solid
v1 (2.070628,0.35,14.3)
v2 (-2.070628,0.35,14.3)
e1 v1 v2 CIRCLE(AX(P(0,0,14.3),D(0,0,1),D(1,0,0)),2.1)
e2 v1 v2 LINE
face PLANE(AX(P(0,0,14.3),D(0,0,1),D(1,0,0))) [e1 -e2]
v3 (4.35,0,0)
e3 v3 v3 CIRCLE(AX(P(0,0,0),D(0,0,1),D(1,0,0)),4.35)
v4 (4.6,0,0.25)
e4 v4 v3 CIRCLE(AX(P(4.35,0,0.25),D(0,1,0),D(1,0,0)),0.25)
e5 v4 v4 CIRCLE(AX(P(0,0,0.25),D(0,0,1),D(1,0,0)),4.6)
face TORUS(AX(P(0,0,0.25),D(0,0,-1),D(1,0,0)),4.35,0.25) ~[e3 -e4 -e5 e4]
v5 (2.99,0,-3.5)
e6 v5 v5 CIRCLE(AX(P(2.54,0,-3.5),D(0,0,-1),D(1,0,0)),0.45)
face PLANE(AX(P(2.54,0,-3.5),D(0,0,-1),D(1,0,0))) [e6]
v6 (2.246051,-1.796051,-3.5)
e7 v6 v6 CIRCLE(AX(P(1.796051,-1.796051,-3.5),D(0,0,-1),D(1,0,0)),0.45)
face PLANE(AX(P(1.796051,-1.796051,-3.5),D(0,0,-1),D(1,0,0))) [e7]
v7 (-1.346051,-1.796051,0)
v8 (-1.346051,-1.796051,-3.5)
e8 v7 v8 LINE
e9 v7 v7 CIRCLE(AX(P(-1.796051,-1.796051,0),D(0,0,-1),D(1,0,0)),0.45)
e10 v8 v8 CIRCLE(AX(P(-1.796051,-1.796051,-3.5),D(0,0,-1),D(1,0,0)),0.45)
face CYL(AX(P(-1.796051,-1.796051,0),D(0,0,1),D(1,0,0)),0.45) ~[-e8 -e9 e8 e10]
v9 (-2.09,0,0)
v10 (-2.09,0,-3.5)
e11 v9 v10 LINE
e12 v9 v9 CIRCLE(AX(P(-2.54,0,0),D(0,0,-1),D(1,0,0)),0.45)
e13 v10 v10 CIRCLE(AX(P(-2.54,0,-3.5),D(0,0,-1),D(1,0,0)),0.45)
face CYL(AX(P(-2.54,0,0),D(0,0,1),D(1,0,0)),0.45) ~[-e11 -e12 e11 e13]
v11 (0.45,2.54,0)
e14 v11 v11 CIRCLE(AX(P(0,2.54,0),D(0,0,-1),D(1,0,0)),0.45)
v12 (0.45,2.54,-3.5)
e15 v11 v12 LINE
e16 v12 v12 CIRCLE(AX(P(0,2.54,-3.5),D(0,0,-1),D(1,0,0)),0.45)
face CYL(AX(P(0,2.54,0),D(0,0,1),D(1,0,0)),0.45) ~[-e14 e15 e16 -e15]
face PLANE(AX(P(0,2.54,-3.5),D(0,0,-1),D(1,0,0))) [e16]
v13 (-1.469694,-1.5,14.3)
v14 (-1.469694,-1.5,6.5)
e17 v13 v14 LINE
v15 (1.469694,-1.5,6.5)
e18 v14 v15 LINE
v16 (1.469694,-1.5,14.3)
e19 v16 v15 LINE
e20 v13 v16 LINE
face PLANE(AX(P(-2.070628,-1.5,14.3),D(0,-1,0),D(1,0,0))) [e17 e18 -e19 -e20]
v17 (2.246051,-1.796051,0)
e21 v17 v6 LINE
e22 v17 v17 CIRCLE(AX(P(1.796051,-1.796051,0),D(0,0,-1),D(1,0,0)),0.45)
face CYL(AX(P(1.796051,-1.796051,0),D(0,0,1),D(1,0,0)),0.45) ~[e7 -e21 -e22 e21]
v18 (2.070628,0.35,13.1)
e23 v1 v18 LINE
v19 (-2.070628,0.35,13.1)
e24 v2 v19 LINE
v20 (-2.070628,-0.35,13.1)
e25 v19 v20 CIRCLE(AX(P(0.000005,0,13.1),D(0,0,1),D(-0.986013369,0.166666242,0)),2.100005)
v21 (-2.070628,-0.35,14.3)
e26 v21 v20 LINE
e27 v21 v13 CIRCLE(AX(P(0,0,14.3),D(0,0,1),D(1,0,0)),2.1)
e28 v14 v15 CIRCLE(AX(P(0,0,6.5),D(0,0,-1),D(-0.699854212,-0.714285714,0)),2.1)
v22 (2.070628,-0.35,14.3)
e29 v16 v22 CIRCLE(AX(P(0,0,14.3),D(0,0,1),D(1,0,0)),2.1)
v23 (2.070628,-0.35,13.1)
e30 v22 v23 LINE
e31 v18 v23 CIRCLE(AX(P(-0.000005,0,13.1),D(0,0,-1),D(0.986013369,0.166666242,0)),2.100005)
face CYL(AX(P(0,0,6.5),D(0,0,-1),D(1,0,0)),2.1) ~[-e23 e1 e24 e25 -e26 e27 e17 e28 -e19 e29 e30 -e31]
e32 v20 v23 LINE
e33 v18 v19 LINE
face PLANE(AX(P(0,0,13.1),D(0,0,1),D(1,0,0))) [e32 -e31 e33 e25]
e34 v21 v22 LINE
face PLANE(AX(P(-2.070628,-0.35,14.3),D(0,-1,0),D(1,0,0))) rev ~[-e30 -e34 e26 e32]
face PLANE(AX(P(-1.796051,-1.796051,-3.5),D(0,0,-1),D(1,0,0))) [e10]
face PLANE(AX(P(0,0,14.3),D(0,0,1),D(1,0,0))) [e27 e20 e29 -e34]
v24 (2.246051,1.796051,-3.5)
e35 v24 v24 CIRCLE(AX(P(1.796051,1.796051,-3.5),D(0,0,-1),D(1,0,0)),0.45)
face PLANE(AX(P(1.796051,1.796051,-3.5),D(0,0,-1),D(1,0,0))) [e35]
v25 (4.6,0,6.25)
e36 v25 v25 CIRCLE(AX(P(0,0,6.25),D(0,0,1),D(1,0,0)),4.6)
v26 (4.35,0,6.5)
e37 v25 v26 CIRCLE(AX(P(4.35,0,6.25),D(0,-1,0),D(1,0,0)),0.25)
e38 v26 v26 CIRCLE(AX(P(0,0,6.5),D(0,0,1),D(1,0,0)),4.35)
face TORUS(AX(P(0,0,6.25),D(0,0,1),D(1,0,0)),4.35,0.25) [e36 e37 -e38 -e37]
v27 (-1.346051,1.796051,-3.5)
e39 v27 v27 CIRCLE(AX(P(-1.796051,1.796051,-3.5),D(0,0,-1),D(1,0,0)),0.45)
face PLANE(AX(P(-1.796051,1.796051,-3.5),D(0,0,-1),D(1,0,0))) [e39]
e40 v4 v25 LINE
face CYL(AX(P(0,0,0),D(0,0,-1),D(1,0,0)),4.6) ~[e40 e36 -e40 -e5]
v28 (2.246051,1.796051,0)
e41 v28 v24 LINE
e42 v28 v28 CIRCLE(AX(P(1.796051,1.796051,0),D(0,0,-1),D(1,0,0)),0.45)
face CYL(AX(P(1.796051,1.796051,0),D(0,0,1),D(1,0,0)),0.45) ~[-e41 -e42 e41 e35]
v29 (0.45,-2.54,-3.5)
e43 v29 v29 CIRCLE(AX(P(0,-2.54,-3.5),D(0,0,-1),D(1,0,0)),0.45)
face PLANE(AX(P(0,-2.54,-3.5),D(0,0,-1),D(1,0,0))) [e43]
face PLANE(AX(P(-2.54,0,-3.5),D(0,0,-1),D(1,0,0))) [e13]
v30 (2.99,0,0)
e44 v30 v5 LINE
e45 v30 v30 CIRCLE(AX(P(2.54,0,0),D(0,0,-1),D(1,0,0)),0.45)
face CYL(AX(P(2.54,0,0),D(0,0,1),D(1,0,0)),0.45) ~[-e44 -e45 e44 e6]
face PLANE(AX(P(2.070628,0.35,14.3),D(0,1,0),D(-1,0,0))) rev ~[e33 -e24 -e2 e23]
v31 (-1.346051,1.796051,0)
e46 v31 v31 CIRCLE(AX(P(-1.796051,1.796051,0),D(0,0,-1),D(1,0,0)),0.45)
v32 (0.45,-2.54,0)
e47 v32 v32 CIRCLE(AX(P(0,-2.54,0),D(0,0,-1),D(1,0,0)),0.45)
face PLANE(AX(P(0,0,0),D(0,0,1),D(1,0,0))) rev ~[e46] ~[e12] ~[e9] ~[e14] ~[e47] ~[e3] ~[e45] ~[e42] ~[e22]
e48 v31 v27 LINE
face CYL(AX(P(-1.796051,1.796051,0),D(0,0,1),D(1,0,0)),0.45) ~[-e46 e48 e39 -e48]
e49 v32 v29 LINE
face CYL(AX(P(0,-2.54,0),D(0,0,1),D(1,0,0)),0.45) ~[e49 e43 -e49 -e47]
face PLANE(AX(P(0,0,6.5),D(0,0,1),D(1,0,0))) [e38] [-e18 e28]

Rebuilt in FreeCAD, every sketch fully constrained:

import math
import FreeCAD as App
import Part
import Sketcher

V = App.Vector


def edges_at(feature, points):
    """Names of the edges that pass closest to the given points."""
    edges = feature.Shape.Edges
    near = lambda p: min(range(len(edges)), key=lambda i: edges[i].distToShape(Part.Vertex(*p))[0])
    return sorted({f"Edge{near(p) + 1}" for p in points})


def add_polygon(sketch, points):
    """Adds a closed chain of lines whose ends are joined by coincident constraints."""
    first, n = sketch.GeometryCount, len(points)
    for a, b in zip(points, points[1:] + points[:1]):
        sketch.addGeometry(Part.LineSegment(App.Vector(*a, 0), App.Vector(*b, 0)), False)
    for i in range(n):
        sketch.addConstraint(Sketcher.Constraint("Coincident", first + i, 2, first + (i + 1) % n, 1))

doc = App.newDocument("Part")
body = doc.addObject("PartDesign::Body", "Body")

# Sketch on XY plane
sketch1 = doc.addObject("Sketcher::SketchObject", "Sketch")
body.addObject(sketch1)
sketch1.AttachmentSupport = (doc.XY_Plane, [""])
sketch1.MapMode = "FlatFace"
sketch1.addGeometry(Part.Circle(V(0, 0, 0), V(0, 0, 1), 4.6), False)
sketch1.addConstraint([
    Sketcher.Constraint("Coincident", 0, 3, -1, 1),
    Sketcher.Constraint("Diameter", 0, 9.2),
])
pad1 = doc.addObject("PartDesign::Pad", "Pad")
body.addObject(pad1)
pad1.Profile = sketch1
pad1.Length = 6.5

# Sketch on XY plane
sketch2 = doc.addObject("Sketcher::SketchObject", "Sketch001")
body.addObject(sketch2)
sketch2.AttachmentSupport = (doc.XY_Plane, [""])
sketch2.MapMode = "FlatFace"
sketch2.addGeometry([
    Part.Circle(V(2.54, 0, 0), V(0, 0, 1), 0.45),  # 0
    Part.Circle(V(1.796051, -1.796051, 0), V(0, 0, 1), 0.45),  # 1
    Part.Circle(V(0, -2.54, 0), V(0, 0, 1), 0.45),  # 2
    Part.Circle(V(-1.796051, -1.796051, 0), V(0, 0, 1), 0.45),  # 3
    Part.Circle(V(-2.54, 0, 0), V(0, 0, 1), 0.45),  # 4
    Part.Circle(V(-1.796051, 1.796051, 0), V(0, 0, 1), 0.45),  # 5
    Part.Circle(V(0, 2.54, 0), V(0, 0, 1), 0.45),  # 6
    Part.Circle(V(1.796051, 1.796051, 0), V(0, 0, 1), 0.45),  # 7
], False)
sketch2.addConstraint([
    Sketcher.Constraint("Equal", 0, 1),
    Sketcher.Constraint("Equal", 1, 2),
    Sketcher.Constraint("Equal", 2, 3),
    Sketcher.Constraint("Equal", 3, 4),
    Sketcher.Constraint("Equal", 4, 5),
    Sketcher.Constraint("Equal", 5, 6),
    Sketcher.Constraint("Equal", 6, 7),
    Sketcher.Constraint("Symmetric", 0, 3, 4, 3, -1, 1),
    Sketcher.Constraint("Symmetric", 1, 3, 5, 3, -1, 1),
    Sketcher.Constraint("Symmetric", 2, 3, 6, 3, -1, 1),
    Sketcher.Constraint("Symmetric", 3, 3, 7, 3, -1, 1),
    Sketcher.Constraint("Symmetric", 1, 3, 3, 3, -2),
    Sketcher.Constraint("PointOnObject", 0, 3, -1),
    Sketcher.Constraint("PointOnObject", 2, 3, -2),
    Sketcher.Constraint("Diameter", 0, 0.9),
    Sketcher.Constraint("DistanceX", -1, 1, 0, 3, 2.54),
    Sketcher.Constraint("DistanceY", 2, 3, -1, 1, 2.54),
    Sketcher.Constraint("DistanceX", -1, 1, 1, 3, 1.796051),
    Sketcher.Constraint("DistanceY", 1, 3, -1, 1, 1.796051),
])
pad2 = doc.addObject("PartDesign::Pad", "Pad001")
body.addObject(pad2)
pad2.Profile = sketch2
pad2.Length = 3.5
pad2.Reversed = True

# Sketch on XY plane
sketch3 = doc.addObject("Sketcher::SketchObject", "Sketch002")
body.addObject(sketch3)
sketch3.AttachmentSupport = (doc.XY_Plane, [""])
sketch3.MapMode = "FlatFace"
sketch3.AttachmentOffset = App.Placement(V(0, 0, 6.5), App.Rotation())
sketch3.addGeometry(Part.Circle(V(0, 0, 0), V(0, 0, 1), 2.1), False)
sketch3.addConstraint([
    Sketcher.Constraint("Coincident", 0, 3, -1, 1),
    Sketcher.Constraint("Diameter", 0, 4.2),
])
pad3 = doc.addObject("PartDesign::Pad", "Pad002")
body.addObject(pad3)
pad3.Profile = sketch3
pad3.Length = 7.8

# Sketch on XY plane
sketch4 = doc.addObject("Sketcher::SketchObject", "Sketch003")
body.addObject(sketch4)
sketch4.AttachmentSupport = (doc.XY_Plane, [""])
sketch4.MapMode = "FlatFace"
sketch4.AttachmentOffset = App.Placement(V(0, 0, 14.3), App.Rotation())
sketch4.addGeometry([
    Part.LineSegment(V(-2.070628, -0.35, 0), V(2.070628, -0.35, 0)),
    Part.ArcOfCircle(Part.Circle(V(-0.000005, 0, 0), V(0, 0, 1), 2.100005), math.radians(-9.594044), math.radians(9.594044)),
    Part.LineSegment(V(2.070628, 0.35, 0), V(-2.070628, 0.35, 0)),
    Part.ArcOfCircle(Part.Circle(V(0.000005, 0, 0), V(0, 0, 1), 2.100005), math.radians(170.405956), math.radians(189.594044)),
], False)
sketch4.addConstraint([
    Sketcher.Constraint("Coincident", 0, 2, 1, 1),
    Sketcher.Constraint("Coincident", 1, 2, 2, 1),
    Sketcher.Constraint("Coincident", 2, 2, 3, 1),
    Sketcher.Constraint("Coincident", 3, 2, 0, 1),
    Sketcher.Constraint("Horizontal", 0),
    Sketcher.Constraint("Horizontal", 2),
    Sketcher.Constraint("Coincident", 1, 3, -1, 1),
    Sketcher.Constraint("Coincident", 3, 3, -1, 1),
    Sketcher.Constraint("Equal", 1, 3),
    Sketcher.Constraint("Vertical", 0, 2, 1, 2),
    Sketcher.Constraint("DistanceY", 0, 2, 1, 2, 0.7),
    Sketcher.Constraint("Radius", 1, 2.100005),
])
pocket1 = doc.addObject("PartDesign::Pocket", "Pocket")
body.addObject(pocket1)
pocket1.Profile = sketch4
pocket1.Length = 1.2

# Sketch on XY plane
sketch5 = doc.addObject("Sketcher::SketchObject", "Sketch004")
body.addObject(sketch5)
sketch5.AttachmentSupport = (doc.XY_Plane, [""])
sketch5.MapMode = "FlatFace"
sketch5.AttachmentOffset = App.Placement(V(0, 0, 14.3), App.Rotation())
add_polygon(sketch5, [(-2.070628, -1.5), (-2.070628, -2.1), (2.070628, -2.1), (2.070628, -1.5)])  # lines 0-3
sketch5.addConstraint([
    Sketcher.Constraint("Vertical", 0),
    Sketcher.Constraint("Horizontal", 1),
    Sketcher.Constraint("Vertical", 2),
    Sketcher.Constraint("Horizontal", 3),
    Sketcher.Constraint("DistanceY", 0, 2, 0, 1, 0.6),
    Sketcher.Constraint("DistanceY", 0, 2, -1, 1, 2.1),
    Sketcher.Constraint("DistanceX", 1, 1, 1, 2, 4.141256),
    Sketcher.Constraint("DistanceX", 0, 2, -1, 1, 2.070628),
])
pocket2 = doc.addObject("PartDesign::Pocket", "Pocket001")
body.addObject(pocket2)
pocket2.Profile = sketch5
pocket2.Length = 7.8
doc.recompute()

fillet = doc.addObject("PartDesign::Fillet", "Fillet")
body.addObject(fillet)
fillet.Base = (pocket2, edges_at(pocket2, [(-4.6, 0, 6.5), (-4.6, 0, 0)]))
fillet.Radius = 0.25

doc.recompute()
